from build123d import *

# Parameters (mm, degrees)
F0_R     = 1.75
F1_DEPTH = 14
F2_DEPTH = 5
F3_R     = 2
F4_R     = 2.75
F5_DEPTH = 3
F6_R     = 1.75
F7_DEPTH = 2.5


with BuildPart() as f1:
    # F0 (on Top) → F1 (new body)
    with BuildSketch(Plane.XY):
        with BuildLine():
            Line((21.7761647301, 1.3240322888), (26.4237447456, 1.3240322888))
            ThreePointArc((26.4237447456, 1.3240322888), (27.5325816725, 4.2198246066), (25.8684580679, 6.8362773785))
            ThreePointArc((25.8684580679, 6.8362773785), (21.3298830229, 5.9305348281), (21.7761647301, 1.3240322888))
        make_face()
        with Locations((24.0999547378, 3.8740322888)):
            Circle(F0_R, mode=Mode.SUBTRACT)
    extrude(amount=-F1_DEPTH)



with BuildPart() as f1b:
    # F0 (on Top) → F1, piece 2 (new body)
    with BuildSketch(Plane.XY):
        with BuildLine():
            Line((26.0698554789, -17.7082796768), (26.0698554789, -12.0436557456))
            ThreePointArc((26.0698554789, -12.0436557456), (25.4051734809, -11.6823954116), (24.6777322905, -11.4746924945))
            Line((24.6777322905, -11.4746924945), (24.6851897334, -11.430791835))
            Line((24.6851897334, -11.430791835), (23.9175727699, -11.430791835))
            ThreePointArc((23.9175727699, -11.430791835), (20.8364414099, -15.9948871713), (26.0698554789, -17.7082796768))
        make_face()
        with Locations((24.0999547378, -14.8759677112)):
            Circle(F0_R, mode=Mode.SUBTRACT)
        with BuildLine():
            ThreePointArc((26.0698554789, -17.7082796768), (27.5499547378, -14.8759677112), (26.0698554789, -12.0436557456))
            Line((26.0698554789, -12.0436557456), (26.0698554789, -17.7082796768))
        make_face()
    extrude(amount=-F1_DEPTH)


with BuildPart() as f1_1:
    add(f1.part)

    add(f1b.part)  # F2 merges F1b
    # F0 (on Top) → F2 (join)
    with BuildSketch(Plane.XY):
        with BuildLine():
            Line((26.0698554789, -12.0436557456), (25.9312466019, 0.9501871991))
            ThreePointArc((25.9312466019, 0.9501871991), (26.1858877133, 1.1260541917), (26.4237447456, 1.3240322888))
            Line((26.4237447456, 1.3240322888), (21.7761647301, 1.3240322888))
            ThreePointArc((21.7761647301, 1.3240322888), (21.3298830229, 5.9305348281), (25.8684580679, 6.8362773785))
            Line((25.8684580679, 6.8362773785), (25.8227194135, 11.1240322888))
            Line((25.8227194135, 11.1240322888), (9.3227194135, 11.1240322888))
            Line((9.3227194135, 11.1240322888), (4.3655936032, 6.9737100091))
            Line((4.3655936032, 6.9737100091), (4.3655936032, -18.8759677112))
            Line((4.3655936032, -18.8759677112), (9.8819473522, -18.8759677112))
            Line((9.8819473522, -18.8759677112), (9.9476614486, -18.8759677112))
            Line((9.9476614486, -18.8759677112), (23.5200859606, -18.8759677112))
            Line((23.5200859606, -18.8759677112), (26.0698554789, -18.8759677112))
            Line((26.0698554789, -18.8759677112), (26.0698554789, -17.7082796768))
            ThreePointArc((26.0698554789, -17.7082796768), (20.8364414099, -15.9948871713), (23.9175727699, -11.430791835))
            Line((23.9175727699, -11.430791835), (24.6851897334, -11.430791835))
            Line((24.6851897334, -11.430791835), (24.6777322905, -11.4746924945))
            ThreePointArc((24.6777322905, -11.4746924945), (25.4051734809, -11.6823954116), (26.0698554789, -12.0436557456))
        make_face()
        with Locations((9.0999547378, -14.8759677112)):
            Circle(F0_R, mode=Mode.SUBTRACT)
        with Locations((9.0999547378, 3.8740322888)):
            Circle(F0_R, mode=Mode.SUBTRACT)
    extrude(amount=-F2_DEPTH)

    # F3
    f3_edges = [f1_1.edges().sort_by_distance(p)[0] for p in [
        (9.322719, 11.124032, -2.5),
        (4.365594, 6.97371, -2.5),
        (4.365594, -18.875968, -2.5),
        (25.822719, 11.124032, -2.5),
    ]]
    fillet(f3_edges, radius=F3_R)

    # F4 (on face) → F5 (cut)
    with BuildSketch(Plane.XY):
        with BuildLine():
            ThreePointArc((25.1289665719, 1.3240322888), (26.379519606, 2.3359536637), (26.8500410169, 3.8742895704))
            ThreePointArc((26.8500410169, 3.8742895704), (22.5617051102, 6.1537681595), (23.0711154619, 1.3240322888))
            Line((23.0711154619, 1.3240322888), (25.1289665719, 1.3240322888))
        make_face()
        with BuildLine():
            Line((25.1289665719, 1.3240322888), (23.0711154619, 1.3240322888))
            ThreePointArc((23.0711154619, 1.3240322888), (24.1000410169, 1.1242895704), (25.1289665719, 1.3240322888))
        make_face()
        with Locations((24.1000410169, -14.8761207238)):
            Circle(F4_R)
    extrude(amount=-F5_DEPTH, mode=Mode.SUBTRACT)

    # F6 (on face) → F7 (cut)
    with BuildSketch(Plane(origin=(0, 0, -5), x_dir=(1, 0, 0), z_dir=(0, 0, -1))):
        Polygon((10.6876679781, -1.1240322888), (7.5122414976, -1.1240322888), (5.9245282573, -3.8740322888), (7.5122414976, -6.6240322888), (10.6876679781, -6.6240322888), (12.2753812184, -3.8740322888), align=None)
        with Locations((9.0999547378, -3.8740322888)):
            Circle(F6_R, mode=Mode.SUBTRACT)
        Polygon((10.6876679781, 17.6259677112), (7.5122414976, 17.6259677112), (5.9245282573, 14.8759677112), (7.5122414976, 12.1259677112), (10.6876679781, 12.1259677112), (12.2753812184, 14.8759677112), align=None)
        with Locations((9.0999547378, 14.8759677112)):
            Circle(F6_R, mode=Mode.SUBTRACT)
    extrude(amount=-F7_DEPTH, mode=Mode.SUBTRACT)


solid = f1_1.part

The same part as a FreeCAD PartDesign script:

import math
import FreeCAD as App
import Part
import Sketcher

V = App.Vector
Q = App.Units.Quantity


def edges_at(feature, points):
    """Names of the edges that pass closest to the given points."""
    edges = feature.Shape.Edges
    near = lambda p: min(range(len(edges)), key=lambda i: edges[i].distToShape(Part.Vertex(*p))[0])
    return sorted({f"Edge{near(p) + 1}" for p in points})


def add_polygon(sketch, points):
    """Adds a closed chain of lines whose ends are joined by coincident constraints."""
    first, n = sketch.GeometryCount, len(points)
    for a, b in zip(points, points[1:] + points[:1]):
        sketch.addGeometry(Part.LineSegment(App.Vector(*a, 0), App.Vector(*b, 0)), False)
    for i in range(n):
        sketch.addConstraint(Sketcher.Constraint("Coincident", first + i, 2, first + (i + 1) % n, 1))

doc = App.newDocument("Part")
body = doc.addObject("PartDesign::Body", "Body")

# Sketch on XY plane
sketch1 = body.newObject("Sketcher::SketchObject", "Sketch")
sketch1.AttachmentSupport = (doc.getObject("XY_Plane"), [""])
sketch1.MapMode = "FlatFace"
sketch1.addGeometry([
    Part.LineSegment(V(21.776165, 1.324032, 0), V(26.423745, 1.324032, 0)),
    Part.ArcOfCircle(Part.Circle(V(24.099955, 3.874032, 0), V(0, 0, 1), 3.45), math.radians(-47.657395), math.radians(59.162185)),
    Part.ArcOfCircle(Part.Circle(V(24.099955, 3.874032, 0), V(0, 0, 1), 3.45), math.radians(59.162185), math.radians(227.657395)),
    Part.Circle(V(24.099955, 3.874032, 0), V(0, 0, 1), 1.75),
], False)
sketch1.addConstraint([
    Sketcher.Constraint("Coincident", 0, 2, 1, 1),
    Sketcher.Constraint("Tangent", 1, 2, 2, 1),
    Sketcher.Constraint("Coincident", 2, 2, 0, 1),
    Sketcher.Constraint("Horizontal", 0),
    Sketcher.Constraint("Coincident", 3, 3, 1, 3),
    Sketcher.Constraint("Equal", 1, 2),
    Sketcher.Constraint("Diameter", 3, 3.5),
    Sketcher.Constraint("Radius", 1, 3.45),
    Sketcher.Constraint("DistanceY", 0, 2, 1, 3, 2.55),
    Sketcher.Constraint("DistanceX", -1, 1, 1, 2, 25.868458),
    Sketcher.Constraint("DistanceX", -1, 1, 1, 3, 24.099955),
    Sketcher.Constraint("DistanceY", -1, 1, 1, 3, 3.874032),
])
pad1 = body.newObject("PartDesign::Pad", "Pad")
pad1.Profile = sketch1
pad1.Length = 14
pad1.Reversed = True
body2 = doc.addObject("PartDesign::Body", "Body001")

# Sketch on XY plane
sketch2 = body2.newObject("Sketcher::SketchObject", "Sketch001")
sketch2.AttachmentSupport = (doc.getObject("XY_Plane001"), [""])
sketch2.MapMode = "FlatFace"
sketch2.addGeometry([
    Part.ArcOfCircle(Part.Circle(V(24.099955, -14.875968, 0), V(0, 0, 1), 3.45), math.radians(93.030316), math.radians(304.818992)),  # 0
    Part.ArcOfCircle(Part.Circle(V(24.099955, -14.875968, 0), V(0, 0, 1), 3.45), math.radians(-55.181008), math.radians(55.181008)),  # 1
    Part.ArcOfCircle(Part.Circle(V(24.099955, -14.875968, 0), V(0, 0, 1), 3.45), math.radians(55.181008), math.radians(80.359146)),  # 2
    Part.LineSegment(V(24.677732, -11.474692, 0), V(24.68519, -11.430792, 0)),  # 3
    Part.LineSegment(V(24.68519, -11.430792, 0), V(23.917573, -11.430792, 0)),  # 4
    Part.Circle(V(24.099955, -14.875968, 0), V(0, 0, 1), 1.75),  # 5
], False)
sketch2.addConstraint([
    Sketcher.Constraint("Tangent", 0, 2, 1, 1),
    Sketcher.Constraint("Tangent", 1, 2, 2, 1),
    Sketcher.Constraint("Coincident", 2, 2, 3, 1),
    Sketcher.Constraint("Coincident", 3, 2, 4, 1),
    Sketcher.Constraint("Coincident", 4, 2, 0, 1),
    Sketcher.Constraint("Horizontal", 4),
    Sketcher.Constraint("Coincident", 2, 3, 0, 3),
    Sketcher.Constraint("Coincident", 5, 3, 0, 3),
    Sketcher.Constraint("Vertical", 0, 2, 1, 2),
    Sketcher.Constraint("Diameter", 5, 3.5),
    Sketcher.Constraint("Radius", 0, 3.45),
    Sketcher.Constraint("DistanceX", 2, 3, 0, 2, 1.969901),
    Sketcher.Constraint("DistanceY", 2, 2, 3, 2, 0.043901),
    Sketcher.Constraint("Distance", 3, 0.04453),
    Sketcher.Constraint("DistanceX", 4, 2, 4, 1, 0.767617),
    Sketcher.Constraint("DistanceY", 0, 2, -1, 1, 17.70828),
    Sketcher.Constraint("DistanceX", -1, 1, 3, 2, 24.68519),
])
pad2 = body2.newObject("PartDesign::Pad", "Pad001")
pad2.Profile = sketch2
pad2.Length = 14
pad2.Reversed = True
body.AllowCompound = True
doc.recompute()

boolean = body.newObject("PartDesign::Boolean", "Boolean")
boolean.Type = "Fuse"
boolean.addObjects([body2])

# Sketch on XY plane
sketch3 = body.newObject("Sketcher::SketchObject", "Sketch002")
sketch3.AttachmentSupport = (doc.getObject("XY_Plane"), [""])
sketch3.MapMode = "FlatFace"
sketch3.addGeometry([
    Part.LineSegment(V(26.069855, -12.043656, 0), V(25.931247, 0.950187, 0)),  # 0
    Part.ArcOfCircle(Part.Circle(V(24.099955, 3.874032, 0), V(0, 0, 1), 3.45), math.radians(-57.939852), math.radians(-47.657395)),  # 1
    Part.LineSegment(V(26.423745, 1.324032, 0), V(21.776165, 1.324032, 0)),  # 2
    Part.ArcOfCircle(Part.Circle(V(24.099955, 3.874032, 0), V(0, 0, 1), 3.45), math.radians(59.162185), math.radians(227.657395)),  # 3
    Part.LineSegment(V(25.868458, 6.836277, 0), V(25.822719, 11.124032, 0)),  # 4
    Part.LineSegment(V(25.822719, 11.124032, 0), V(9.322719, 11.124032, 0)),  # 5
    Part.LineSegment(V(9.322719, 11.124032, 0), V(4.365594, 6.97371, 0)),  # 6
    Part.LineSegment(V(4.365594, 6.97371, 0), V(4.365594, -18.875968, 0)),  # 7
    Part.LineSegment(V(4.365594, -18.875968, 0), V(26.069855, -18.875968, 0)),  # 8
    Part.LineSegment(V(26.069855, -18.875968, 0), V(26.069855, -17.70828, 0)),  # 9
    Part.ArcOfCircle(Part.Circle(V(24.099955, -14.875968, 0), V(0, 0, 1), 3.45), math.radians(93.030316), math.radians(304.818992)),  # 10
    Part.LineSegment(V(23.917573, -11.430792, 0), V(24.68519, -11.430792, 0)),  # 11
    Part.LineSegment(V(24.68519, -11.430792, 0), V(24.677732, -11.474692, 0)),  # 12
    Part.ArcOfCircle(Part.Circle(V(24.099955, -14.875968, 0), V(0, 0, 1), 3.45), math.radians(55.181008), math.radians(80.359146)),  # 13
    Part.Circle(V(9.099955, -14.875968, 0), V(0, 0, 1), 1.75),  # 14
    Part.Circle(V(9.099955, 3.874032, 0), V(0, 0, 1), 1.75),  # 15
], False)
sketch3.addConstraint([
    Sketcher.Constraint("Coincident", 0, 2, 1, 1),
    Sketcher.Constraint("Coincident", 1, 2, 2, 1),
    Sketcher.Constraint("Coincident", 2, 2, 3, 2),
    Sketcher.Constraint("Coincident", 3, 1, 4, 1),
    Sketcher.Constraint("Coincident", 4, 2, 5, 1),
    Sketcher.Constraint("Coincident", 5, 2, 6, 1),
    Sketcher.Constraint("Coincident", 6, 2, 7, 1),
    Sketcher.Constraint("Coincident", 7, 2, 8, 1),
    Sketcher.Constraint("Coincident", 8, 2, 9, 1),
    Sketcher.Constraint("Coincident", 9, 2, 10, 2),
    Sketcher.Constraint("Coincident", 10, 1, 11, 1),
    Sketcher.Constraint("Coincident", 11, 2, 12, 1),
    Sketcher.Constraint("Coincident", 12, 2, 13, 2),
    Sketcher.Constraint("Coincident", 13, 1, 0, 1),
    Sketcher.Constraint("Horizontal", 2),
    Sketcher.Constraint("Horizontal", 5),
    Sketcher.Constraint("Vertical", 7),
    Sketcher.Constraint("Horizontal", 8),
    Sketcher.Constraint("Vertical", 9),
    Sketcher.Constraint("Horizontal", 11),
    Sketcher.Constraint("Coincident", 3, 3, 1, 3),
    Sketcher.Constraint("Coincident", 13, 3, 10, 3),
    Sketcher.Constraint("Equal", 1, 3),
    Sketcher.Constraint("Equal", 3, 10),
    Sketcher.Constraint("Equal", 10, 13),
    Sketcher.Constraint("Equal", 14, 15),
    Sketcher.Constraint("Parallel", 0, 4),
    Sketcher.Constraint("Horizontal", 13, 3, 14, 3),
    Sketcher.Constraint("Horizontal", 3, 3, 15, 3),
    Sketcher.Constraint("Vertical", 3, 3, 10, 3),
    Sketcher.Constraint("Vertical", 14, 3, 15, 3),
    Sketcher.Constraint("Vertical", 9, 2, 13, 1),
    Sketcher.Constraint("Diameter", 14, 3.5),
    Sketcher.Constraint("Radius", 1, 3.45),
    Sketcher.Constraint("DistanceX", 5, 2, 5, 1, 16.5),
    Sketcher.Constraint("DistanceX", 14, 3, 10, 3, 15.0),
    Sketcher.Constraint("DistanceY", 7, 2, 14, 3, 4.0),
    Sketcher.Constraint("DistanceY", 10, 3, 1, 2, 16.2),
    Sketcher.Constraint("DistanceY", 1, 2, 4, 2, 9.8),
    Sketcher.Constraint("DistanceY", 10, 3, 1, 3, 18.75),
    Sketcher.Constraint("Distance", 4, 4.287999),
    Sketcher.Constraint("DistanceX", 8, 1, 8, 2, 21.704262),
    Sketcher.Constraint("DistanceY", 9, 1, 9, 2, 1.167688),
    Sketcher.Constraint("DistanceX", 0, 2, 1, 2, 0.492498),
    Sketcher.Constraint("DistanceY", 12, 2, 11, 2, 0.043901),
    Sketcher.Constraint("Distance", 6, 6.465158),
    Sketcher.Constraint("Distance", 12, 0.04453),
    Sketcher.Constraint("DistanceX", 11, 1, 11, 2, 0.767617),
    Sketcher.Constraint("DistanceX", -1, 1, 3, 1, 25.868458),
    Sketcher.Constraint("DistanceY", -1, 1, 6, 2, 6.97371),
])
pad3 = body.newObject("PartDesign::Pad", "Pad002")
pad3.Profile = sketch3
pad3.Length = 5
pad3.Reversed = True
doc.recompute()

fillet = body.newObject("PartDesign::Fillet", "Fillet")
fillet.Base = (pad3, edges_at(pad3, [
    (9.323, 11.124, -2.5),
    (4.366, 6.974, -2.5),
    (4.366, -18.876, -2.5),
    (25.823, 11.124, -2.5),
]))
fillet.Radius = 2

# Sketch on XY plane
sketch4 = body.newObject("Sketcher::SketchObject", "Sketch003")
sketch4.AttachmentSupport = (doc.getObject("XY_Plane"), [""])
sketch4.MapMode = "FlatFace"
sketch4.addGeometry([
    Part.ArcOfCircle(Part.Circle(V(24.100041, 3.87429, 0), V(0, 0, 1), 2.75), math.radians(-68.027919), math.radians(0)),
    Part.ArcOfCircle(Part.Circle(V(24.100041, 3.87429, 0), V(0, 0, 1), 2.75), math.radians(0), math.radians(248.027919)),
    Part.ArcOfCircle(Part.Circle(V(24.100041, 3.87429, 0), V(0, 0, 1), 2.75), math.radians(-111.972081), math.radians(-68.027919)),
    Part.Circle(V(24.100041, -14.876121, 0), V(0, 0, 1), 2.75),
], False)
sketch4.addConstraint([
    Sketcher.Constraint("Tangent", 0, 2, 1, 1),
    Sketcher.Constraint("Tangent", 1, 2, 2, 1),
    Sketcher.Constraint("Tangent", 2, 2, 0, 1),
    Sketcher.Constraint("Equal", 2, 3),
    Sketcher.Constraint("Horizontal", 2, 3, 0, 2),
    Sketcher.Constraint("Horizontal", 1, 2, 2, 2),
    Sketcher.Constraint("Vertical", 2, 3, 3, 3),
    Sketcher.Constraint("Diameter", 3, 5.5),
    Sketcher.Constraint("DistanceX", -1, 1, 0, 3, 24.100041),
    Sketcher.Constraint("DistanceY", -1, 1, 0, 3, 3.87429),
    Sketcher.Constraint("DistanceY", 3, 3, -1, 1, 14.876121),
    Sketcher.Constraint("DistanceX", 1, 2, 2, 2, 2.057851),
])
pocket1 = body.newObject("PartDesign::Pocket", "Pocket")
pocket1.Profile = sketch4
pocket1.Length = 3

# Sketch on XY plane
sketch5 = body.newObject("Sketcher::SketchObject", "Sketch004")
sketch5.AttachmentSupport = (doc.getObject("XY_Plane"), [""])
sketch5.MapMode = "FlatFace"
sketch5.AttachmentOffset = App.Placement(V(0, 0, -5), App.Rotation())
add_polygon(sketch5, [(10.687668, 1.124032), (7.512241, 1.124032), (5.924528, 3.874032), (7.512241, 6.624032), (10.687668, 6.624032), (12.275381, 3.874032)])  # lines 0-5
sketch5.addGeometry(Part.Circle(V(9.099955, 3.874032, 0), V(0, 0, 1), 1.75), False)  # 6
add_polygon(sketch5, [(10.687668, -17.625968), (7.512241, -17.625968), (5.924528, -14.875968), (7.512241, -12.125968), (10.687668, -12.125968), (12.275381, -14.875968)])  # lines 7-12
sketch5.addGeometry(Part.Circle(V(9.099955, -14.875968, 0), V(0, 0, 1), 1.75), False)  # 13
sketch5.addConstraint([
    Sketcher.Constraint("Horizontal", 0),
    Sketcher.Constraint("Horizontal", 3),
    Sketcher.Constraint("Horizontal", 7),
    Sketcher.Constraint("Horizontal", 10),
    Sketcher.Constraint("Equal", 6, 13),
    Sketcher.Constraint("Parallel", 1, 4),
    Sketcher.Constraint("Parallel", 2, 5),
    Sketcher.Constraint("Parallel", 4, 8),
    Sketcher.Constraint("Parallel", 5, 9),
    Sketcher.Constraint("Parallel", 8, 11),
    Sketcher.Constraint("Parallel", 9, 12),
    Sketcher.Constraint("Horizontal", 6, 3, 1, 2),
    Sketcher.Constraint("Horizontal", 1, 2, 4, 2),
    Sketcher.Constraint("Horizontal", 13, 3, 8, 2),
    Sketcher.Constraint("Horizontal", 8, 2, 11, 2),
    Sketcher.Constraint("Vertical", 6, 3, 13, 3),
    Sketcher.Constraint("Vertical", 0, 2, 2, 2),
    Sketcher.Constraint("Vertical", 3, 2, 5, 2),
    Sketcher.Constraint("Vertical", 2, 2, 7, 2),
    Sketcher.Constraint("Vertical", 1, 2, 8, 2),
    Sketcher.Constraint("Vertical", 7, 2, 9, 2),
    Sketcher.Constraint("Vertical", 5, 2, 10, 2),
    Sketcher.Constraint("Diameter", 6, 3.5),
    Sketcher.Constraint("Angle", 1, Q("120 deg")),
    Sketcher.Constraint("DistanceY", 13, 3, 0, 2, 16.0),
    Sketcher.Constraint("DistanceY", 0, 2, 2, 2, 5.5),
    Sketcher.Constraint("DistanceX", 0, 2, 0, 1, 3.175426),
    Sketcher.Constraint("DistanceX", -1, 1, 0, 2, 7.512241),
    Sketcher.Constraint("DistanceX", -1, 1, 6, 3, 9.099955),
    Sketcher.Constraint("DistanceY", -1, 1, 6, 3, 3.874032),
])
pocket2 = body.newObject("PartDesign::Pocket", "Pocket001")
pocket2.Profile = sketch5
pocket2.Length = 2.5
pocket2.Reversed = True

doc.recompute()
